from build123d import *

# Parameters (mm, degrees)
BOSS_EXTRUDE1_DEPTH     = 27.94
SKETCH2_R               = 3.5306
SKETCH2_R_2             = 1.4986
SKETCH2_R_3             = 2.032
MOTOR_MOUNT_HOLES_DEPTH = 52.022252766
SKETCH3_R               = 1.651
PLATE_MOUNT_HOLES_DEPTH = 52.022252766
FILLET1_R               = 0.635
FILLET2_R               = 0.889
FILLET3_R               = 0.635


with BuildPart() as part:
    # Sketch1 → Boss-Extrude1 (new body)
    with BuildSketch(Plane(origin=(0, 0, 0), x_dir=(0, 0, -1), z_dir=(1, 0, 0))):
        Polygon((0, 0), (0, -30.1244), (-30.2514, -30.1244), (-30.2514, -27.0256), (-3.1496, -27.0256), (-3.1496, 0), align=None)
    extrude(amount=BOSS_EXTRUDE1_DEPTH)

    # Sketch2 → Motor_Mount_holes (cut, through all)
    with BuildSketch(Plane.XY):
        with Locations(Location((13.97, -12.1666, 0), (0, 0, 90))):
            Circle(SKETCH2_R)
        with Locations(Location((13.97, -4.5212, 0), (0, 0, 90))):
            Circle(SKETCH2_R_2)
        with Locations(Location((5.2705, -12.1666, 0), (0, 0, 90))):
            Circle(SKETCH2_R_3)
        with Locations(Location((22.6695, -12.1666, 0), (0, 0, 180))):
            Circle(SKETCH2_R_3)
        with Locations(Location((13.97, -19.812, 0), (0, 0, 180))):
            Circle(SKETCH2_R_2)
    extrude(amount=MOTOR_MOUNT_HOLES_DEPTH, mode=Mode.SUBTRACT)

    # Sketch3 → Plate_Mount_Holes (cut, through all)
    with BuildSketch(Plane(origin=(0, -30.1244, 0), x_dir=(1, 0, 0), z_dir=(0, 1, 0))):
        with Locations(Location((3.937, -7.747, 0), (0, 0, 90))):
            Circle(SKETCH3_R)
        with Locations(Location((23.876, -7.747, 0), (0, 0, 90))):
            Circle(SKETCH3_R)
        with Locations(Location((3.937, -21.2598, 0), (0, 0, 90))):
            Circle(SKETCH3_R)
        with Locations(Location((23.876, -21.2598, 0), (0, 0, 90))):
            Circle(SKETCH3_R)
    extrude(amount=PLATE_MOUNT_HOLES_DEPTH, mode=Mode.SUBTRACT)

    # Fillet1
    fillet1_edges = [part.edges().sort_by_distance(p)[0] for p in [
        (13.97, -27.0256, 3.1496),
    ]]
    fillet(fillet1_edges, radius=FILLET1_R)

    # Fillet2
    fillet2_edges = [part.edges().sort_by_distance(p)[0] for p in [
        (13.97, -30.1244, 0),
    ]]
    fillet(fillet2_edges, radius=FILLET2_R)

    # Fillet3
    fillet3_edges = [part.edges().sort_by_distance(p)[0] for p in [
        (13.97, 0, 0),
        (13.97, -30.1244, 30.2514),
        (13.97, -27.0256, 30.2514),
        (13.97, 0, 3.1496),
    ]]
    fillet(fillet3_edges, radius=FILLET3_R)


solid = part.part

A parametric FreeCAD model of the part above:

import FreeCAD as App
import Part
import Sketcher
Q = App.Units.Quantity


def edges_at(feature, points):
    """Names of the edges that pass closest to the given points."""
    edges = feature.Shape.Edges
    near = lambda p: min(range(len(edges)), key=lambda i: edges[i].distToShape(Part.Vertex(*p))[0])
    return sorted({f"Edge{near(p) + 1}" for p in points})

doc = App.newDocument("Part")
body = doc.addObject("PartDesign::Body", "Body")

# Sketch on YZ plane
sketch1 = body.newObject("Sketcher::SketchObject", "Sketch")
sketch1.AttachmentSupport = (doc.getObject("YZ_Plane"), [""])
sketch1.MapMode = "FlatFace"
sketch1.addGeometry(Part.LineSegment(App.Vector(-30.1244, 0, 0), App.Vector(0, 0, 0)), False)
sketch1.addGeometry(Part.LineSegment(App.Vector(0, 0, 0), App.Vector(0, 3.1496, 0)), False)
sketch1.addGeometry(Part.LineSegment(App.Vector(0, 3.1496, 0), App.Vector(-27.0256, 3.1496, 0)), False)
sketch1.addGeometry(Part.LineSegment(App.Vector(-27.0256, 3.1496, 0), App.Vector(-27.0256, 30.2514, 0)), False)
sketch1.addGeometry(Part.LineSegment(App.Vector(-27.0256, 30.2514, 0), App.Vector(-30.1244, 30.2514, 0)), False)
sketch1.addGeometry(Part.LineSegment(App.Vector(-30.1244, 30.2514, 0), App.Vector(-30.1244, 0, 0)), False)
sketch1.addConstraint(Sketcher.Constraint("Coincident", 0, 2, 1, 1))
sketch1.addConstraint(Sketcher.Constraint("Coincident", 1, 2, 2, 1))
sketch1.addConstraint(Sketcher.Constraint("Coincident", 2, 2, 3, 1))
sketch1.addConstraint(Sketcher.Constraint("Coincident", 3, 2, 4, 1))
sketch1.addConstraint(Sketcher.Constraint("Coincident", 4, 2, 5, 1))
sketch1.addConstraint(Sketcher.Constraint("Coincident", 5, 2, 0, 1))
sketch1.addConstraint(Sketcher.Constraint("Horizontal", 0))
sketch1.addConstraint(Sketcher.Constraint("Vertical", 1))
sketch1.addConstraint(Sketcher.Constraint("Horizontal", 2))
sketch1.addConstraint(Sketcher.Constraint("Vertical", 3))
sketch1.addConstraint(Sketcher.Constraint("Horizontal", 4))
sketch1.addConstraint(Sketcher.Constraint("Vertical", 5))
sketch1.addConstraint(Sketcher.Constraint("Coincident", 0, 2, -1, 1))
sketch1.addConstraint(Sketcher.Constraint("DistanceX", 0, 1, 0, 2, Q("1.186 in")))
sketch1.addConstraint(Sketcher.Constraint("DistanceX", 2, 2, 2, 1, Q("1.064 in")))
sketch1.addConstraint(Sketcher.Constraint("DistanceY", 1, 1, 1, 2, Q("0.124 in")))
sketch1.addConstraint(Sketcher.Constraint("DistanceY", 3, 1, 3, 2, Q("1.067 in")))
pad1 = body.newObject("PartDesign::Pad", "Pad")
pad1.Profile = sketch1
pad1.Length = Q("1.1 in")

# Sketch on XY plane
sketch2 = body.newObject("Sketcher::SketchObject", "Sketch001")
sketch2.AttachmentSupport = (doc.getObject("XY_Plane"), [""])
sketch2.MapMode = "FlatFace"
sketch2.addGeometry(Part.Circle(App.Vector(13.97, -12.1666, 0), App.Vector(0, 0, 1), 3.5306), False)
sketch2.addGeometry(Part.Circle(App.Vector(13.97, -4.5212, 0), App.Vector(0, 0, 1), 1.4986), False)
sketch2.addGeometry(Part.Circle(App.Vector(5.2705, -12.1666, 0), App.Vector(0, 0, 1), 2.032), False)
sketch2.addGeometry(Part.Circle(App.Vector(22.6695, -12.1666, 0), App.Vector(0, 0, 1), 2.032), False)
sketch2.addGeometry(Part.Circle(App.Vector(13.97, -19.812, 0), App.Vector(0, 0, 1), 1.4986), False)
sketch2.addConstraint(Sketcher.Constraint("Equal", 2, 3))
sketch2.addConstraint(Sketcher.Constraint("Equal", 1, 4))
sketch2.addConstraint(Sketcher.Constraint("Horizontal", 0, 3, 2, 3))
sketch2.addConstraint(Sketcher.Constraint("Horizontal", 2, 3, 3, 3))
sketch2.addConstraint(Sketcher.Constraint("Vertical", 0, 3, 1, 3))
sketch2.addConstraint(Sketcher.Constraint("Vertical", 1, 3, 4, 3))
sketch2.addConstraint(Sketcher.Constraint("Diameter", 2, Q("0.16 in")))
sketch2.addConstraint(Sketcher.Constraint("Diameter", 0, Q("0.278 in")))
sketch2.addConstraint(Sketcher.Constraint("Diameter", 1, Q("0.118 in")))
sketch2.addConstraint(Sketcher.Constraint("DistanceX", -1, 1, 0, 3, Q("0.55 in")))
sketch2.addConstraint(Sketcher.Constraint("DistanceY", 4, 3, -1, 1, Q("0.78 in")))
sketch2.addConstraint(Sketcher.Constraint("DistanceY", 0, 3, -1, 1, Q("0.479 in")))
sketch2.addConstraint(Sketcher.Constraint("DistanceY", 1, 3, -1, 1, Q("0.178 in")))
sketch2.addConstraint(Sketcher.Constraint("DistanceX", 2, 3, 3, 3, Q("0.685 in")))
sketch2.addConstraint(Sketcher.Constraint("DistanceX", -1, 1, 2, 3, Q("0.2075 in")))
pocket1 = body.newObject("PartDesign::Pocket", "Pocket")
pocket1.Profile = sketch2
pocket1.Type = "ThroughAll"
pocket1.Reversed = True

# Sketch on XZ plane
sketch3 = body.newObject("Sketcher::SketchObject", "Sketch002")
sketch3.AttachmentSupport = (doc.getObject("XZ_Plane"), [""])
sketch3.MapMode = "FlatFace"
sketch3.AttachmentOffset = App.Placement(App.Vector(0, 0, 1.186 * 25.4), App.Rotation())
sketch3.addGeometry(Part.Circle(App.Vector(3.937, 7.747, 0), App.Vector(0, 0, 1), 1.651), False)
sketch3.addGeometry(Part.Circle(App.Vector(23.876, 7.747, 0), App.Vector(0, 0, 1), 1.651), False)
sketch3.addGeometry(Part.Circle(App.Vector(3.937, 21.2598, 0), App.Vector(0, 0, 1), 1.651), False)
sketch3.addGeometry(Part.Circle(App.Vector(23.876, 21.2598, 0), App.Vector(0, 0, 1), 1.651), False)
sketch3.addConstraint(Sketcher.Constraint("Equal", 0, 1))
sketch3.addConstraint(Sketcher.Constraint("Equal", 1, 2))
sketch3.addConstraint(Sketcher.Constraint("Equal", 2, 3))
sketch3.addConstraint(Sketcher.Constraint("Horizontal", 0, 3, 1, 3))
sketch3.addConstraint(Sketcher.Constraint("Horizontal", 2, 3, 3, 3))
sketch3.addConstraint(Sketcher.Constraint("Vertical", 0, 3, 2, 3))
sketch3.addConstraint(Sketcher.Constraint("Vertical", 1, 3, 3, 3))
sketch3.addConstraint(Sketcher.Constraint("Diameter", 0, Q("0.13 in")))
sketch3.addConstraint(Sketcher.Constraint("DistanceX", -1, 1, 1, 3, Q("0.94 in")))
sketch3.addConstraint(Sketcher.Constraint("DistanceX", -1, 1, 0, 3, Q("0.155 in")))
sketch3.addConstraint(Sketcher.Constraint("DistanceY", -1, 1, 0, 3, Q("0.305 in")))
sketch3.addConstraint(Sketcher.Constraint("DistanceY", -1, 1, 2, 3, Q("0.837 in")))
pocket2 = body.newObject("PartDesign::Pocket", "Pocket001")
pocket2.Profile = sketch3
pocket2.Type = "ThroughAll"
doc.recompute()

fillet = body.newObject("PartDesign::Fillet", "Fillet")
fillet.Base = (pocket2, edges_at(pocket2, [(13.97, -27.026, 3.15)]))
fillet.Radius = Q("0.025 in")
doc.recompute()

fillet2 = body.newObject("PartDesign::Fillet", "Fillet001")
fillet2.Base = (fillet, edges_at(fillet, [(13.97, -30.124, 0)]))
fillet2.Radius = Q("0.035 in")
doc.recompute()

fillet3 = body.newObject("PartDesign::Fillet", "Fillet002")
fillet3.Base = (fillet2, edges_at(fillet2, [
    (13.97, 0, 0),
    (13.97, -30.124, 30.251),
    (13.97, -27.026, 30.251),
    (13.97, 0, 3.15),
]))
fillet3.Radius = Q("0.025 in")

doc.recompute()
